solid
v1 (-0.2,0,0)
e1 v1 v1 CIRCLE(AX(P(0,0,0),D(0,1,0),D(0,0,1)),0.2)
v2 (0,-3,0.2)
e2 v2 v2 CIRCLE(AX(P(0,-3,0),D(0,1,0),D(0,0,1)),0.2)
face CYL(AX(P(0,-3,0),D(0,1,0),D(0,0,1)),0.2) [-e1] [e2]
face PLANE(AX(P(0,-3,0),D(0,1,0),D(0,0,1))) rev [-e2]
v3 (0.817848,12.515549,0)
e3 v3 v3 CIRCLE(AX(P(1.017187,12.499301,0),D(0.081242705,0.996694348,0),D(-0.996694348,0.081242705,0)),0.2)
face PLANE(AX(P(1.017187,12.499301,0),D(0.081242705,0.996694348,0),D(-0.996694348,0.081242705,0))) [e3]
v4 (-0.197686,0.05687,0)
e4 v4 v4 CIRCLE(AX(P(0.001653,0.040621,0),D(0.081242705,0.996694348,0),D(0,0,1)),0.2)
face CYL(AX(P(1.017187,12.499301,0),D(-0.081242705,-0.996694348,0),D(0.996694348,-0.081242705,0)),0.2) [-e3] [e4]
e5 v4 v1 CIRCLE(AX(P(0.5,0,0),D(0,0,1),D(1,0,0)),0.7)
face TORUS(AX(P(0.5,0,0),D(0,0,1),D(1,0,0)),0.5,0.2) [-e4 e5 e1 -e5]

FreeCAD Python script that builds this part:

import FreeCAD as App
import Part
import Sketcher

V = App.Vector
Q = App.Units.Quantity

doc = App.newDocument("Part")
body = doc.addObject("PartDesign::Body", "Body")

# Sketch on XZ plane
sketch1 = doc.addObject("Sketcher::SketchObject", "Sketch")
body.addObject(sketch1)
sketch1.AttachmentSupport = (doc.XZ_Plane, [""])
sketch1.MapMode = "FlatFace"
sketch1.addGeometry(Part.Circle(V(0, 0, 0), V(0, 0, 1), 0.2), False)
sketch1.addConstraint(Sketcher.Constraint("Coincident", 0, 3, -1, 1))
sketch1.addConstraint(Sketcher.Constraint("Diameter", 0, Q("0.4 mm")))
pad1 = doc.addObject("PartDesign::Pad", "Pad")
body.addObject(pad1)
pad1.Profile = sketch1
pad1.Length = 3

# Sketch on XZ plane
sketch2 = doc.addObject("Sketcher::SketchObject", "Sketch001")
body.addObject(sketch2)
sketch2.AttachmentSupport = (doc.XZ_Plane, [""])
sketch2.MapMode = "FlatFace"
sketch2.addGeometry(Part.Circle(V(0, 0, 0), V(0, 0, 1), 0.2), False)
sketch2.addGeometry(Part.LineSegment(V(0.5, 0, 0), V(0.5, -10, 0)), True)  # axis
sketch2.addConstraint(Sketcher.Constraint("Vertical", 1))
sketch2.addConstraint(Sketcher.Constraint("Coincident", 0, 3, -1, 1))
sketch2.addConstraint(Sketcher.Constraint("PointOnObject", 1, 1, -1))
sketch2.addConstraint(Sketcher.Constraint("Diameter", 0, Q("0.4 mm")))
sketch2.addConstraint(Sketcher.Constraint("DistanceY", 1, 2, 1, 1, Q("10 mm")))
sketch2.addConstraint(Sketcher.Constraint("DistanceX", -1, 1, 1, 1, Q("0.5 mm")))
revolution = doc.addObject("PartDesign::Revolution", "Revolution")
body.addObject(revolution)
revolution.Profile = sketch2
revolution.ReferenceAxis = (sketch2, ["Axis0"])
revolution.Angle = 4.66

# Sketch on an angled plane
sketch3 = doc.addObject("Sketcher::SketchObject", "Sketch002")
body.addObject(sketch3)
sketch3.Placement = App.Placement(V(0.0033, 0.040487, 0), App.Rotation(V(0.996694348, -0.081242705, 0), V(0, 0, -1), V(0.081242705, 0.996694348, 0), "ZXY"))
sketch3.addGeometry(Part.Circle(V(-0.001653, 0, 0), V(0, 0, 1), 0.2), False)
sketch3.addConstraint(Sketcher.Constraint("PointOnObject", 0, 3, -1))
sketch3.addConstraint(Sketcher.Constraint("Diameter", 0, Q("0.4 mm")))
sketch3.addConstraint(Sketcher.Constraint("DistanceX", 0, 3, -1, 1, Q("0.001653 mm")))
pad2 = doc.addObject("PartDesign::Pad", "Pad001")
body.addObject(pad2)
pad2.Profile = sketch3
pad2.Length = 12.5

doc.recompute()
